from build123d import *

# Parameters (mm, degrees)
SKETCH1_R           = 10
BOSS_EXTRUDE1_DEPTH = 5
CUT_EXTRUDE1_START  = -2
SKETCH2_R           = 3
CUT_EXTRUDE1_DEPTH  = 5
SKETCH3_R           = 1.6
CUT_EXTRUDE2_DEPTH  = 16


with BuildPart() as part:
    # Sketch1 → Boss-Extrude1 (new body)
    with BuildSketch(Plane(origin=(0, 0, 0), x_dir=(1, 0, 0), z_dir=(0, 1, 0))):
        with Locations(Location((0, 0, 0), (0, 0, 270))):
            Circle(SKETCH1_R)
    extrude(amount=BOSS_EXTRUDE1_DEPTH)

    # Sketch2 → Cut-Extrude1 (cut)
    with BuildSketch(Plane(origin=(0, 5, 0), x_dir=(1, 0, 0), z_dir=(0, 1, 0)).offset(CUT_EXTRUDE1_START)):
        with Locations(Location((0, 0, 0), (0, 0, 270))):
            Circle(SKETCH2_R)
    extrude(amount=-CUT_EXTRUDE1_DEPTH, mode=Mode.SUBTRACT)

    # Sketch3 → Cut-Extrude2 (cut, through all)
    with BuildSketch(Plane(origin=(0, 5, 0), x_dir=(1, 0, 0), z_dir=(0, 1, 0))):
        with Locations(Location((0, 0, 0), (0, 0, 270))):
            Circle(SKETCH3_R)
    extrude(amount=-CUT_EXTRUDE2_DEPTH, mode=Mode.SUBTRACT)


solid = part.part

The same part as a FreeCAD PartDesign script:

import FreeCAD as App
import Part
import Sketcher

V = App.Vector

doc = App.newDocument("Part")
body = doc.addObject("PartDesign::Body", "Body")

sketch1 = body.newObject("Sketcher::SketchObject", "Sketch")
sketch1.AttachmentSupport = (doc.getObject("XZ_Plane"), [""])
sketch1.MapMode = "FlatFace"
sketch1.addGeometry(Part.Circle(V(0, 0, 0), V(0, 0, 1), 10), False)
sketch1.addConstraint(Sketcher.Constraint("Coincident", 0, 3, -1, 1))
sketch1.addConstraint(Sketcher.Constraint("Diameter", 0, 20.0))
pad1 = body.newObject("PartDesign::Pad", "Pad")
pad1.Profile = sketch1
pad1.Length = 5
pad1.Reversed = True

sketch2 = body.newObject("Sketcher::SketchObject", "Sketch001")
sketch2.AttachmentSupport = (doc.getObject("XZ_Plane"), [""])
sketch2.MapMode = "FlatFace"
sketch2.AttachmentOffset = App.Placement(V(0, 0, -3), App.Rotation())
sketch2.addGeometry(Part.Circle(V(0, 0, 0), V(0, 0, 1), 3), False)
sketch2.addConstraint(Sketcher.Constraint("Coincident", 0, 3, -1, 1))
sketch2.addConstraint(Sketcher.Constraint("Diameter", 0, 6.0))
pocket1 = body.newObject("PartDesign::Pocket", "Pocket")
pocket1.Profile = sketch2
pocket1.Length = 5
pocket1.Reversed = True

sketch3 = body.newObject("Sketcher::SketchObject", "Sketch002")
sketch3.AttachmentSupport = (doc.getObject("XZ_Plane"), [""])
sketch3.MapMode = "FlatFace"
sketch3.AttachmentOffset = App.Placement(V(0, 0, -5), App.Rotation())
sketch3.addGeometry(Part.Circle(V(0, 0, 0), V(0, 0, 1), 1.6), False)
sketch3.addConstraint(Sketcher.Constraint("Coincident", 0, 3, -1, 1))
sketch3.addConstraint(Sketcher.Constraint("Diameter", 0, 3.2))
pocket2 = body.newObject("PartDesign::Pocket", "Pocket001")
pocket2.Profile = sketch3
pocket2.Type = "ThroughAll"
pocket2.Reversed = True

doc.recompute()
